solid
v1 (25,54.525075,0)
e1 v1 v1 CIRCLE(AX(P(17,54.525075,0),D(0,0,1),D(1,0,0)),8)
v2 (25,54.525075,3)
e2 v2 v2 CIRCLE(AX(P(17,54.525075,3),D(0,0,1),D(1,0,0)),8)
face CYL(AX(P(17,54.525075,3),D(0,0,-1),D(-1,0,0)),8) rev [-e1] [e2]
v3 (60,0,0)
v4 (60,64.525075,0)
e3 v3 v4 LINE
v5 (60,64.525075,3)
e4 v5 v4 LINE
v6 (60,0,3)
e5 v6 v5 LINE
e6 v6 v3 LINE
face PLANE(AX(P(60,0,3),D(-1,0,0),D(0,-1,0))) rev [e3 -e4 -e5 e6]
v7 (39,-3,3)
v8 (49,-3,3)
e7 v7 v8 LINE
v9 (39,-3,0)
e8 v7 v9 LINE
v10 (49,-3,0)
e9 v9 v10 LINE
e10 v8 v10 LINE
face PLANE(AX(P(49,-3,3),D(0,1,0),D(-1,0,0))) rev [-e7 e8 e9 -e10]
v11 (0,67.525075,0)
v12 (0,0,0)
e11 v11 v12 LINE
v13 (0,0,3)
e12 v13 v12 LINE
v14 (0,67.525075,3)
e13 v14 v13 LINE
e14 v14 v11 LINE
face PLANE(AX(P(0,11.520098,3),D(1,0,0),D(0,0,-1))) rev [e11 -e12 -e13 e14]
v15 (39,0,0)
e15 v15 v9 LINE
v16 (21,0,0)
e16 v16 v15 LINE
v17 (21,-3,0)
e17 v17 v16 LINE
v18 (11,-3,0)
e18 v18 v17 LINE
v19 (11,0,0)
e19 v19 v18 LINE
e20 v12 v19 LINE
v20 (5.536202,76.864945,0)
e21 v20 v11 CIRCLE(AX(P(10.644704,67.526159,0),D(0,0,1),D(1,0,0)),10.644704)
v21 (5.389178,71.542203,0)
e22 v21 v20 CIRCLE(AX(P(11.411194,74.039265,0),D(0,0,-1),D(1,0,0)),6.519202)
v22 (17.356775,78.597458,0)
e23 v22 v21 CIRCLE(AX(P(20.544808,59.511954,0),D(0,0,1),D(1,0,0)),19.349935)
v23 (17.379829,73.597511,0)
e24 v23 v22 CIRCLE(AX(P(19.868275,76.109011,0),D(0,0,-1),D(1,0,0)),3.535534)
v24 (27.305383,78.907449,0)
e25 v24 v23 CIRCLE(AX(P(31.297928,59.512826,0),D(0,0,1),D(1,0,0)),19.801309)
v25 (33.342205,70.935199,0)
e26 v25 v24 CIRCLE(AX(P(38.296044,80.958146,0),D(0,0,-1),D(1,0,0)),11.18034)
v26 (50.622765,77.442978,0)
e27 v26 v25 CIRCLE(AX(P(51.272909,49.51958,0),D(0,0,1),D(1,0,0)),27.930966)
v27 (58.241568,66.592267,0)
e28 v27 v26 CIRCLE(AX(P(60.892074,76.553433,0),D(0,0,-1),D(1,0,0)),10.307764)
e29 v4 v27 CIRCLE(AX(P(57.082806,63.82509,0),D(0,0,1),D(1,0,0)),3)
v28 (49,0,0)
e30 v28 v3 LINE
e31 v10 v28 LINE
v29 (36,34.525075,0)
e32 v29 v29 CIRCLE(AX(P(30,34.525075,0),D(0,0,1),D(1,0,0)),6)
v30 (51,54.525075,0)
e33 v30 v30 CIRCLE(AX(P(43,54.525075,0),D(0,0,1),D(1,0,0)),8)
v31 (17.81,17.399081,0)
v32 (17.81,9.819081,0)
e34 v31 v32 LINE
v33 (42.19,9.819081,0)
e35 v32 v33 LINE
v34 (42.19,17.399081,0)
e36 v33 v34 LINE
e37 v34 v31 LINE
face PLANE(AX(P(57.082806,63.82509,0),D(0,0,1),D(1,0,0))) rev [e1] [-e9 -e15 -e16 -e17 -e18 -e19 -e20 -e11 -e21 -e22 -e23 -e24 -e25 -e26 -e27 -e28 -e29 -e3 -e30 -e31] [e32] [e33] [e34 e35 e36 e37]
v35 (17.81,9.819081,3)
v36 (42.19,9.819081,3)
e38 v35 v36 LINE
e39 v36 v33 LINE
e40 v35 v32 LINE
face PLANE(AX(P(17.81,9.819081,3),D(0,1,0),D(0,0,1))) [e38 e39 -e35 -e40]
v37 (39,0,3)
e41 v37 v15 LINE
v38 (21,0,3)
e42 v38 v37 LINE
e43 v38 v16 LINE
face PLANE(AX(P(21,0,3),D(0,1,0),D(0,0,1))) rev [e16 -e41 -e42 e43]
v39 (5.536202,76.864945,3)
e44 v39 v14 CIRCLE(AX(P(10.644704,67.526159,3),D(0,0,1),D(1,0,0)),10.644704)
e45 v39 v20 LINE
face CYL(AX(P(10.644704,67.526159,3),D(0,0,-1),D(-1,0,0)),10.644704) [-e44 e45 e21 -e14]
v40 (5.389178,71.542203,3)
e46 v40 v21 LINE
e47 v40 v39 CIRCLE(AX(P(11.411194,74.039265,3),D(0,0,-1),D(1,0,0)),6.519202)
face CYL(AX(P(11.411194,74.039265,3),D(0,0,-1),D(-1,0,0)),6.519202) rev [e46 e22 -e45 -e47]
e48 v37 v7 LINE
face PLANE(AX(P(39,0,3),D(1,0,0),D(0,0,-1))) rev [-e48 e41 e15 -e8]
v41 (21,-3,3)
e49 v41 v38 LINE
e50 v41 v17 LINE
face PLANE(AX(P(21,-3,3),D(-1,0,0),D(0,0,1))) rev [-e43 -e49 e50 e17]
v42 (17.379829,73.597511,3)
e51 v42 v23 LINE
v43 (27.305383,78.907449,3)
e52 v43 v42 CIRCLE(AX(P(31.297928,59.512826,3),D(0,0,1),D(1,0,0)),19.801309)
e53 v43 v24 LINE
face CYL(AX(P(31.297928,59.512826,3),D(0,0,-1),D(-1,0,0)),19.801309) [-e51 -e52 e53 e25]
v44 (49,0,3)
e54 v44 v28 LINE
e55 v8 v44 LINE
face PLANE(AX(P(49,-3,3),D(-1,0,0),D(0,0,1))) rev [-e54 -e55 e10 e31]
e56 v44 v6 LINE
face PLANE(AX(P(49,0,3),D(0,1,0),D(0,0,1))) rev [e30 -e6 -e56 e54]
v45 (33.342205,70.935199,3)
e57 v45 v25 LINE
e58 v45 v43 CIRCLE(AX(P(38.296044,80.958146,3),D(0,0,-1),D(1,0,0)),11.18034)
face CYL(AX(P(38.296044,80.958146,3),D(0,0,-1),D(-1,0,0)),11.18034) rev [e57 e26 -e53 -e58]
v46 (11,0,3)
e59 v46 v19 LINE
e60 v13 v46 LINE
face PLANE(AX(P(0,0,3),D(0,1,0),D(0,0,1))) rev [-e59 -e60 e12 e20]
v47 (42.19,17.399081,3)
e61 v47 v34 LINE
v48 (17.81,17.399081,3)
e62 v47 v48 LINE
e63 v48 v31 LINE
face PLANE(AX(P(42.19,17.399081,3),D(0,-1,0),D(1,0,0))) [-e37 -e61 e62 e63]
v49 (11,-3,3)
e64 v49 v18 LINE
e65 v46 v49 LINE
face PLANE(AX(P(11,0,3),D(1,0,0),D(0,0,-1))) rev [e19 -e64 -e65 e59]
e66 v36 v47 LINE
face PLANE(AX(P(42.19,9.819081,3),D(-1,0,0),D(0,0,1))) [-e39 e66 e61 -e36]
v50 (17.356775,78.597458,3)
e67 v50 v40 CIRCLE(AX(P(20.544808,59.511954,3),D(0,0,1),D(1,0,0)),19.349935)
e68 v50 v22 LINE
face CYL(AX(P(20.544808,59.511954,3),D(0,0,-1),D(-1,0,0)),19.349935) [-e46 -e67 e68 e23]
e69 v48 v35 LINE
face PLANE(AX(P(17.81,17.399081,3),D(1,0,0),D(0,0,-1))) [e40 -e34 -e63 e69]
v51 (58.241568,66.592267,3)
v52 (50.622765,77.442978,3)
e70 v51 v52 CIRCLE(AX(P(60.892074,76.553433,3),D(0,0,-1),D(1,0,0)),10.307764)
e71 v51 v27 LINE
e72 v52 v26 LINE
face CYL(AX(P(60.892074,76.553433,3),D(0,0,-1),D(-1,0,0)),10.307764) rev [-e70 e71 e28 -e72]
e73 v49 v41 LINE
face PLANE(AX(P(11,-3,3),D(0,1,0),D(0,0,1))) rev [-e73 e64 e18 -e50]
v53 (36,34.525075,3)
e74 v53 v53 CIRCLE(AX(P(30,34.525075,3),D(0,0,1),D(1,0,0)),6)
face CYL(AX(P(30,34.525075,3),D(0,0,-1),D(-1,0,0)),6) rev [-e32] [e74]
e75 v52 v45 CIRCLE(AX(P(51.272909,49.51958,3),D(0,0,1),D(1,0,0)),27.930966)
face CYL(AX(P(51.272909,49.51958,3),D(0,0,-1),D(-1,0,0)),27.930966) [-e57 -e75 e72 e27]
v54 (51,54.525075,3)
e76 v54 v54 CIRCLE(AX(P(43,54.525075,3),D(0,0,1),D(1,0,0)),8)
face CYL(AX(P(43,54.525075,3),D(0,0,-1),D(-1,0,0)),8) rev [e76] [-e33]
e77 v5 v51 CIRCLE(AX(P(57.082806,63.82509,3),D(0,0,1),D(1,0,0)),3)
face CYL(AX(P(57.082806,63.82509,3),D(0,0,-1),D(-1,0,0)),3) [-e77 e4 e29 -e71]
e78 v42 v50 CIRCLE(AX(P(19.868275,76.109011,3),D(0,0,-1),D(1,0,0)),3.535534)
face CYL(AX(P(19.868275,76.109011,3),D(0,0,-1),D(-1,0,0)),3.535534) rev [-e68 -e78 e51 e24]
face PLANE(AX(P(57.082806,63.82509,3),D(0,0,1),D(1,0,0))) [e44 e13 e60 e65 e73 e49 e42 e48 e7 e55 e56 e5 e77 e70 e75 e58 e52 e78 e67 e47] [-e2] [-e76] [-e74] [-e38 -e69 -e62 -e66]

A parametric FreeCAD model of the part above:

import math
import FreeCAD as App
import Part
import Sketcher


def add_polygon(sketch, points):
    """Adds a closed chain of lines whose ends are joined by coincident constraints."""
    first, n = sketch.GeometryCount, len(points)
    for a, b in zip(points, points[1:] + points[:1]):
        sketch.addGeometry(Part.LineSegment(App.Vector(*a, 0), App.Vector(*b, 0)), False)
    for i in range(n):
        sketch.addConstraint(Sketcher.Constraint("Coincident", first + i, 2, first + (i + 1) % n, 1))

doc = App.newDocument("Part")
body = doc.addObject("PartDesign::Body", "Body")

# Sketch on XY plane
sketch1 = body.newObject("Sketcher::SketchObject", "Sketch")
sketch1.AttachmentSupport = (doc.getObject("XY_Plane"), [""])
sketch1.MapMode = "FlatFace"
sketch1.addGeometry(Part.LineSegment(App.Vector(11, -3, 0), App.Vector(21, -3, 0)), False)  # 0
sketch1.addGeometry(Part.LineSegment(App.Vector(21, -3, 0), App.Vector(21, 0, 0)), False)  # 1
sketch1.addGeometry(Part.LineSegment(App.Vector(21, 0, 0), App.Vector(39, 0, 0)), False)  # 2
sketch1.addGeometry(Part.LineSegment(App.Vector(39, 0, 0), App.Vector(39, -3, 0)), False)  # 3
sketch1.addGeometry(Part.LineSegment(App.Vector(39, -3, 0), App.Vector(49, -3, 0)), False)  # 4
sketch1.addGeometry(Part.LineSegment(App.Vector(49, -3, 0), App.Vector(49, 0, 0)), False)  # 5
sketch1.addGeometry(Part.LineSegment(App.Vector(49, 0, 0), App.Vector(60, 0, 0)), False)  # 6
sketch1.addGeometry(Part.LineSegment(App.Vector(60, 0, 0), App.Vector(60, 64.525075, 0)), False)  # 7
sketch1.addGeometry(Part.ArcOfCircle(Part.Circle(App.Vector(57.082806, 63.82509, 0), App.Vector(0, 0, 1), 3), math.radians(13.493108), math.radians(67.278397)), False)  # 8
sketch1.addGeometry(Part.ArcOfCircle(Part.Circle(App.Vector(60.892074, 76.553433, 0), App.Vector(0, 0, 1), 10.307764), math.radians(175.049297), math.radians(255.099756)), False)  # 9
sketch1.addGeometry(Part.ArcOfCircle(Part.Circle(App.Vector(51.272909, 49.51958, 0), App.Vector(0, 0, 1), 27.930966), math.radians(91.333784), math.radians(129.938504)), False)  # 10
sketch1.addGeometry(Part.ArcOfCircle(Part.Circle(App.Vector(38.296044, 80.958146, 0), App.Vector(0, 0, 1), 11.18034), math.radians(-169.430975), math.radians(-116.300872)), False)  # 11
sketch1.addGeometry(Part.ArcOfCircle(Part.Circle(App.Vector(31.297928, 59.512826, 0), App.Vector(0, 0, 1), 19.801309), math.radians(101.632314), math.radians(134.659156)), False)  # 12
sketch1.addGeometry(Part.ArcOfCircle(Part.Circle(App.Vector(19.868275, 76.109011, 0), App.Vector(0, 0, 1), 3.535534), math.radians(135.264179), math.radians(225.264179)), False)  # 13
sketch1.addGeometry(Part.ArcOfCircle(Part.Circle(App.Vector(20.544808, 59.511954, 0), App.Vector(0, 0, 1), 19.349935), math.radians(99.483105), math.radians(141.558127)), False)  # 14
sketch1.addGeometry(Part.ArcOfCircle(Part.Circle(App.Vector(11.411194, 74.039265, 0), App.Vector(0, 0, 1), 6.519202), math.radians(154.313956), math.radians(202.521611)), False)  # 15
sketch1.addGeometry(Part.ArcOfCircle(Part.Circle(App.Vector(10.644704, 67.526159, 0), App.Vector(0, 0, 1), 10.644704), math.radians(118.679538), math.radians(180.005833)), False)  # 16
sketch1.addGeometry(Part.LineSegment(App.Vector(0, 67.525075, 0), App.Vector(0, 0, 0)), False)  # 17
sketch1.addGeometry(Part.LineSegment(App.Vector(0, 0, 0), App.Vector(11, 0, 0)), False)  # 18
sketch1.addGeometry(Part.LineSegment(App.Vector(11, 0, 0), App.Vector(11, -3, 0)), False)  # 19
add_polygon(sketch1, [(42.19, 9.819081), (17.81, 9.819081), (17.81, 17.399081), (42.19, 17.399081)])  # lines 20-23
sketch1.addGeometry(Part.Circle(App.Vector(30, 34.525075, 0), App.Vector(0, 0, 1), 6), False)  # 24
sketch1.addGeometry(Part.Circle(App.Vector(17, 54.525075, 0), App.Vector(0, 0, 1), 8), False)  # 25
sketch1.addGeometry(Part.Circle(App.Vector(43, 54.525075, 0), App.Vector(0, 0, 1), 8), False)  # 26
sketch1.addConstraint([
    Sketcher.Constraint("Coincident", 0, 2, 1, 1),
    Sketcher.Constraint("Coincident", 1, 2, 2, 1),
    Sketcher.Constraint("Coincident", 2, 2, 3, 1),
    Sketcher.Constraint("Coincident", 3, 2, 4, 1),
    Sketcher.Constraint("Coincident", 4, 2, 5, 1),
    Sketcher.Constraint("Coincident", 5, 2, 6, 1),
    Sketcher.Constraint("Coincident", 6, 2, 7, 1),
    Sketcher.Constraint("Coincident", 7, 2, 8, 1),
    Sketcher.Constraint("Coincident", 8, 2, 9, 2),
    Sketcher.Constraint("Coincident", 9, 1, 10, 1),
    Sketcher.Constraint("Coincident", 10, 2, 11, 2),
    Sketcher.Constraint("Coincident", 11, 1, 12, 1),
    Sketcher.Constraint("Coincident", 12, 2, 13, 2),
    Sketcher.Constraint("Coincident", 13, 1, 14, 1),
    Sketcher.Constraint("Coincident", 14, 2, 15, 2),
    Sketcher.Constraint("Coincident", 15, 1, 16, 1),
    Sketcher.Constraint("Coincident", 16, 2, 17, 1),
    Sketcher.Constraint("Coincident", 17, 2, 18, 1),
    Sketcher.Constraint("Coincident", 18, 2, 19, 1),
    Sketcher.Constraint("Coincident", 19, 2, 0, 1),
    Sketcher.Constraint("Horizontal", 0),
    Sketcher.Constraint("Vertical", 1),
    Sketcher.Constraint("Horizontal", 2),
    Sketcher.Constraint("Vertical", 3),
    Sketcher.Constraint("Horizontal", 4),
    Sketcher.Constraint("Vertical", 5),
    Sketcher.Constraint("Horizontal", 6),
    Sketcher.Constraint("Vertical", 7),
    Sketcher.Constraint("Vertical", 17),
    Sketcher.Constraint("Horizontal", 18),
    Sketcher.Constraint("Vertical", 19),
    Sketcher.Constraint("Horizontal", 20),
    Sketcher.Constraint("Vertical", 21),
    Sketcher.Constraint("Horizontal", 22),
    Sketcher.Constraint("Vertical", 23),
    Sketcher.Constraint("Coincident", 17, 2, -1, 1),
    Sketcher.Constraint("Equal", 25, 26),
    Sketcher.Constraint("PointOnObject", 1, 2, -1),
    Sketcher.Constraint("PointOnObject", 5, 2, -1),
    Sketcher.Constraint("Horizontal", 25, 3, 26, 3),
    Sketcher.Constraint("Horizontal", 0, 2, 3, 2),
    Sketcher.Constraint("Equal", 0, 4),
    Sketcher.Constraint("Equal", 6, 18),
    Sketcher.Constraint("Diameter", 24, 12.0),
    Sketcher.Constraint("Diameter", 25, 16.0),
    Sketcher.Constraint("Radius", 8, 3.0),
    Sketcher.Constraint("DistanceX", 0, 1, 0, 2, 10.0),
    Sketcher.Constraint("DistanceX", 2, 1, 2, 2, 18.0),
    Sketcher.Constraint("DistanceX", 6, 1, 6, 2, 11.0),
    Sketcher.Constraint("DistanceY", 1, 1, 1, 2, 3.0),
    Sketcher.Constraint("DistanceX", -1, 1, 24, 3, 30.0),
    Sketcher.Constraint("DistanceX", -1, 1, 25, 3, 17.0),
    Sketcher.Constraint("DistanceX", -1, 1, 26, 3, 43.0),
    Sketcher.Constraint("DistanceY", 24, 3, 26, 3, 20.0),
    Sketcher.Constraint("DistanceY", 26, 3, 7, 2, 10.0),
    Sketcher.Constraint("DistanceX", 20, 2, 20, 1, 24.38),
    Sketcher.Constraint("DistanceY", 21, 1, 21, 2, 7.58),
    Sketcher.Constraint("DistanceX", -1, 1, 20, 2, 17.81),
    Sketcher.Constraint("Radius", 11, 11.18034),
    Sketcher.Constraint("Radius", 12, 19.801309),
    Sketcher.Constraint("Radius", 9, 10.307764),
    Sketcher.Constraint("Radius", 10, 27.930966),
    Sketcher.Constraint("Radius", 13, 3.535534),
    Sketcher.Constraint("Radius", 14, 19.349935),
    Sketcher.Constraint("Radius", 15, 6.519202),
    Sketcher.Constraint("Radius", 16, 10.644704),
    Sketcher.Constraint("DistanceX", 14, 3, 8, 3, 36.537998),
    Sketcher.Constraint("DistanceY", -1, 1, 10, 2, 70.935199),
    Sketcher.Constraint("DistanceX", -1, 1, 15, 1, 5.536202),
    Sketcher.Constraint("DistanceX", 13, 3, 9, 3, 41.023799),
    Sketcher.Constraint("DistanceX", 14, 3, 10, 3, 30.728102),
    Sketcher.Constraint("DistanceY", 12, 2, 13, 3, 2.5115),
    Sketcher.Constraint("DistanceX", 13, 1, 13, 3, 2.5115),
    Sketcher.Constraint("DistanceY", 16, 3, 13, 1, 11.071299),
    Sketcher.Constraint("DistanceY", 7, 1, 7, 2, 64.525075),
    Sketcher.Constraint("DistanceY", 17, 2, 17, 1, 67.525075),
    Sketcher.Constraint("DistanceY", -1, 1, 8, 3, 63.82509),
    Sketcher.Constraint("DistanceY", -1, 1, 10, 3, 49.51958),
    Sketcher.Constraint("DistanceY", -1, 1, 13, 3, 76.109011),
    Sketcher.Constraint("DistanceY", -1, 1, 11, 1, 78.907449),
    Sketcher.Constraint("DistanceX", -1, 1, 12, 2, 17.379829),
    Sketcher.Constraint("DistanceY", -1, 1, 20, 2, 9.819081),
    Sketcher.Constraint("DistanceX", 11, 3, 9, 3, 22.59603),
    Sketcher.Constraint("DistanceY", 13, 3, 9, 3, 0.444422),
    Sketcher.Constraint("DistanceX", 15, 3, 13, 3, 8.457081),
])
pad1 = body.newObject("PartDesign::Pad", "Pad")
pad1.Profile = sketch1
pad1.Length = 3

doc.recompute()
